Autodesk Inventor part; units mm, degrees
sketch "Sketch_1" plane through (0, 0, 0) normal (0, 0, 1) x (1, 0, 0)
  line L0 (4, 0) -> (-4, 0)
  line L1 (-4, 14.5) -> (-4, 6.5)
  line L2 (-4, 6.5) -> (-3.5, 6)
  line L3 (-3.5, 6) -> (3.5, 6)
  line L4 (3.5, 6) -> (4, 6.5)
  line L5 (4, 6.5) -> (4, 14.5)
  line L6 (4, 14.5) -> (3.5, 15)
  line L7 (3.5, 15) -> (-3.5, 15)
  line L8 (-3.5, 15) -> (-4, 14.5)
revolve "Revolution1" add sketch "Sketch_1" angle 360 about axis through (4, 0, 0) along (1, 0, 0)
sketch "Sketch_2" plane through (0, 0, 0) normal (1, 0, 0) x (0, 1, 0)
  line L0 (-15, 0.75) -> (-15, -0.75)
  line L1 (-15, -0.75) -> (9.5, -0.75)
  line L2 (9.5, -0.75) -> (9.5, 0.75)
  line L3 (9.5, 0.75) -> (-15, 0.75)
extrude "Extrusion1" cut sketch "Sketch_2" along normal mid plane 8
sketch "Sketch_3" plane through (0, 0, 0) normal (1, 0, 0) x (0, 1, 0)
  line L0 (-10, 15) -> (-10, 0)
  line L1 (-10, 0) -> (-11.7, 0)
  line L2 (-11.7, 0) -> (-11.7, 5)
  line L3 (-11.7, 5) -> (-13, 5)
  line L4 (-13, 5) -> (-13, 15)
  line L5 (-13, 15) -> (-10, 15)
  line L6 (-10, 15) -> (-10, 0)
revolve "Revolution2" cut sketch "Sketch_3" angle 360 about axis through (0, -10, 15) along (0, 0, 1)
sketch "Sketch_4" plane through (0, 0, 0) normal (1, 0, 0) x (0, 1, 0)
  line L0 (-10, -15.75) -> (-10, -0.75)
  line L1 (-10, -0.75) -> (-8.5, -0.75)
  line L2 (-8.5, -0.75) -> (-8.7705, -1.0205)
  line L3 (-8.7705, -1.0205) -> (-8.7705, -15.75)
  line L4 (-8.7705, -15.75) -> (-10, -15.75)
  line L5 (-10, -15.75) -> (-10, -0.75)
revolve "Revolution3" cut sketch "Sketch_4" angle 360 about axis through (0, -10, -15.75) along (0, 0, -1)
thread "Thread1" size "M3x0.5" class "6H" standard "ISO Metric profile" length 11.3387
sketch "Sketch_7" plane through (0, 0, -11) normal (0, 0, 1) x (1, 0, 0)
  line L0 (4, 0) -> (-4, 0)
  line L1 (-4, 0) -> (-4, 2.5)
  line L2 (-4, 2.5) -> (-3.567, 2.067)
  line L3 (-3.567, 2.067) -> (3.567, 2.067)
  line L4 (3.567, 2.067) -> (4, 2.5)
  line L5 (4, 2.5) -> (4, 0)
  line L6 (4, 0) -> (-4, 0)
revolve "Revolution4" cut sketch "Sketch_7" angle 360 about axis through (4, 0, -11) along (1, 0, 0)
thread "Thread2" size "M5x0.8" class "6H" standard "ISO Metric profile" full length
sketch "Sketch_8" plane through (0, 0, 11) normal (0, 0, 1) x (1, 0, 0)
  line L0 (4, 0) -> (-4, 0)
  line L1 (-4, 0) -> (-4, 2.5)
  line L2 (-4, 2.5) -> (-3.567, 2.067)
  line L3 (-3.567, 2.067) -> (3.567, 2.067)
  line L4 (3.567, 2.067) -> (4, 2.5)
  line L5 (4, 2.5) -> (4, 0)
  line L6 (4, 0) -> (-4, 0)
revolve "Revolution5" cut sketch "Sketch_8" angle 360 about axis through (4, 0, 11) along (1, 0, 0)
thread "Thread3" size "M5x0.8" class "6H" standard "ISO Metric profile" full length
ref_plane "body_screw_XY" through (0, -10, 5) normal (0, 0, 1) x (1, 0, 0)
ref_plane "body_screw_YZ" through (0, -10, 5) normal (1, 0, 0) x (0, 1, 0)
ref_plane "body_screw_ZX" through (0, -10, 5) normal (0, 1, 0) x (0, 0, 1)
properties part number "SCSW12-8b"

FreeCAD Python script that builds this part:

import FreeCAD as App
import Part
import Sketcher
from FreeCAD import Vector
Q = App.Units.Quantity

doc = App.newDocument("Part")
body = doc.addObject("PartDesign::Body", "Body")

# Sketch on XY plane
sketch1 = body.newObject("Sketcher::SketchObject", "Sketch")
sketch1.AttachmentSupport = (doc.getObject("XY_Plane"), [""])
sketch1.MapMode = "FlatFace"
sketch1.addGeometry([
    Part.LineSegment(Vector(-3.5, 15, 0), Vector(-4, 14.5, 0)),  # 0
    Part.LineSegment(Vector(-4, 14.5, 0), Vector(-4, 6.5, 0)),  # 1
    Part.LineSegment(Vector(-4, 6.5, 0), Vector(-3.5, 6, 0)),  # 2
    Part.LineSegment(Vector(-3.5, 6, 0), Vector(3.5, 6, 0)),  # 3
    Part.LineSegment(Vector(3.5, 6, 0), Vector(4, 6.5, 0)),  # 4
    Part.LineSegment(Vector(4, 6.5, 0), Vector(4, 14.5, 0)),  # 5
    Part.LineSegment(Vector(4, 14.5, 0), Vector(3.5, 15, 0)),  # 6
    Part.LineSegment(Vector(3.5, 15, 0), Vector(-3.5, 15, 0)),  # 7
], False)
sketch1.addConstraint([
    Sketcher.Constraint("Coincident", 0, 2, 1, 1),
    Sketcher.Constraint("Coincident", 1, 2, 2, 1),
    Sketcher.Constraint("Coincident", 2, 2, 3, 1),
    Sketcher.Constraint("Coincident", 3, 2, 4, 1),
    Sketcher.Constraint("Coincident", 4, 2, 5, 1),
    Sketcher.Constraint("Coincident", 5, 2, 6, 1),
    Sketcher.Constraint("Coincident", 6, 2, 7, 1),
    Sketcher.Constraint("Coincident", 7, 2, 0, 1),
    Sketcher.Constraint("Vertical", 1),
    Sketcher.Constraint("Horizontal", 3),
    Sketcher.Constraint("Vertical", 5),
    Sketcher.Constraint("Horizontal", 7),
    Sketcher.Constraint("Symmetric", 1, 2, 4, 2, -2),
    Sketcher.Constraint("Perpendicular", 0, 2),
    Sketcher.Constraint("Perpendicular", 2, 4),
    Sketcher.Constraint("Perpendicular", 4, 6),
    Sketcher.Constraint("Horizontal", 0, 2, 5, 2),
    Sketcher.Constraint("Vertical", 3, 2, 6, 2),
    Sketcher.Constraint("Vertical", 2, 2, 7, 2),
    Sketcher.Constraint("DistanceX", 3, 1, 3, 2, 7.0),
    Sketcher.Constraint("DistanceY", 1, 2, 1, 1, 8.0),
    Sketcher.Constraint("DistanceX", 0, 2, -1, 1, 4.0),
    Sketcher.Constraint("DistanceY", -1, 1, 2, 2, 6.0),
])
revolution = body.newObject("PartDesign::Revolution", "Revolution")
revolution.Profile = sketch1
revolution.ReferenceAxis = (sketch1, ["H_Axis"])
revolution.Angle = 360

# Sketch on YZ plane
sketch2 = body.newObject("Sketcher::SketchObject", "Sketch001")
sketch2.AttachmentSupport = (doc.getObject("YZ_Plane"), [""])
sketch2.MapMode = "FlatFace"
sketch2.addGeometry([
    Part.LineSegment(Vector(9.5, 0.75, 0), Vector(-15, 0.75, 0)),
    Part.LineSegment(Vector(-15, 0.75, 0), Vector(-15, -0.75, 0)),
    Part.LineSegment(Vector(-15, -0.75, 0), Vector(9.5, -0.75, 0)),
    Part.LineSegment(Vector(9.5, -0.75, 0), Vector(9.5, 0.75, 0)),
], False)
sketch2.addConstraint([
    Sketcher.Constraint("Coincident", 0, 2, 1, 1),
    Sketcher.Constraint("Coincident", 1, 2, 2, 1),
    Sketcher.Constraint("Coincident", 2, 2, 3, 1),
    Sketcher.Constraint("Coincident", 3, 2, 0, 1),
    Sketcher.Constraint("Horizontal", 0),
    Sketcher.Constraint("Vertical", 1),
    Sketcher.Constraint("Horizontal", 2),
    Sketcher.Constraint("Vertical", 3),
    Sketcher.Constraint("DistanceX", 0, 2, 0, 1, 24.5),
    Sketcher.Constraint("DistanceY", 1, 2, 1, 1, 1.5),
    Sketcher.Constraint("DistanceX", 0, 2, -1, 1, 15.0),
    Sketcher.Constraint("DistanceY", -1, 1, 0, 2, 0.75),
])
pocket1 = body.newObject("PartDesign::Pocket", "Pocket")
pocket1.Profile = sketch2
pocket1.Length = 8
pocket1.Midplane = True

# Sketch on YZ plane
sketch3 = body.newObject("Sketcher::SketchObject", "Sketch002")
sketch3.AttachmentSupport = (doc.getObject("YZ_Plane"), [""])
sketch3.MapMode = "FlatFace"
sketch3.addGeometry([
    Part.LineSegment(Vector(-10, 0, 0), Vector(-10, 15, 0)),  # 0
    Part.LineSegment(Vector(-10, 15, 0), Vector(-13, 15, 0)),  # 1
    Part.LineSegment(Vector(-13, 15, 0), Vector(-13, 5, 0)),  # 2
    Part.LineSegment(Vector(-13, 5, 0), Vector(-11.7, 5, 0)),  # 3
    Part.LineSegment(Vector(-11.7, 5, 0), Vector(-11.7, 0, 0)),  # 4
    Part.LineSegment(Vector(-11.7, 0, 0), Vector(-10, 0, 0)),  # 5
], False)
sketch3.addGeometry(Part.LineSegment(Vector(-10, 0, 0), Vector(-10, 15, 0)), True)  # axis
sketch3.addConstraint([
    Sketcher.Constraint("Coincident", 0, 2, 1, 1),
    Sketcher.Constraint("Coincident", 1, 2, 2, 1),
    Sketcher.Constraint("Coincident", 2, 2, 3, 1),
    Sketcher.Constraint("Coincident", 3, 2, 4, 1),
    Sketcher.Constraint("Coincident", 4, 2, 5, 1),
    Sketcher.Constraint("Coincident", 5, 2, 0, 1),
    Sketcher.Constraint("Vertical", 0),
    Sketcher.Constraint("Horizontal", 1),
    Sketcher.Constraint("Vertical", 2),
    Sketcher.Constraint("Horizontal", 3),
    Sketcher.Constraint("Vertical", 4),
    Sketcher.Constraint("Horizontal", 5),
    Sketcher.Constraint("Vertical", 6),
    Sketcher.Constraint("Coincident", 6, 1, 5, 2),
    Sketcher.Constraint("PointOnObject", 4, 2, -1),
    Sketcher.Constraint("Horizontal", 1, 2, 6, 2),
    Sketcher.Constraint("DistanceX", 1, 2, 1, 1, 3.0),
    Sketcher.Constraint("DistanceY", 0, 1, 0, 2, 15.0),
    Sketcher.Constraint("DistanceY", 2, 2, 2, 1, 10.0),
    Sketcher.Constraint("DistanceX", 3, 1, 3, 2, 1.3),
    Sketcher.Constraint("DistanceX", 0, 2, -1, 1, 10.0),
])
groove = body.newObject("PartDesign::Groove", "Groove")
groove.Profile = sketch3
groove.ReferenceAxis = (sketch3, ["Axis0"])
groove.Angle = 360

# Sketch on YZ plane
sketch4 = body.newObject("Sketcher::SketchObject", "Sketch003")
sketch4.AttachmentSupport = (doc.getObject("YZ_Plane"), [""])
sketch4.MapMode = "FlatFace"
sketch4.addGeometry([
    Part.LineSegment(Vector(-10, -0.75, 0), Vector(-10, -15.75, 0)),  # 0
    Part.LineSegment(Vector(-10, -15.75, 0), Vector(-8.7705, -15.75, 0)),  # 1
    Part.LineSegment(Vector(-8.7705, -15.75, 0), Vector(-8.7705, -1.0205, 0)),  # 2
    Part.LineSegment(Vector(-8.7705, -1.0205, 0), Vector(-8.5, -0.75, 0)),  # 3
    Part.LineSegment(Vector(-8.5, -0.75, 0), Vector(-10, -0.75, 0)),  # 4
], False)
sketch4.addGeometry(Part.LineSegment(Vector(-10, -0.75, 0), Vector(-10, -15.75, 0)), True)  # axis
sketch4.addConstraint([
    Sketcher.Constraint("Coincident", 0, 2, 1, 1),
    Sketcher.Constraint("Coincident", 1, 2, 2, 1),
    Sketcher.Constraint("Coincident", 2, 2, 3, 1),
    Sketcher.Constraint("Coincident", 3, 2, 4, 1),
    Sketcher.Constraint("Coincident", 4, 2, 0, 1),
    Sketcher.Constraint("Vertical", 0),
    Sketcher.Constraint("Horizontal", 1),
    Sketcher.Constraint("Vertical", 2),
    Sketcher.Constraint("Horizontal", 4),
    Sketcher.Constraint("Vertical", 5),
    Sketcher.Constraint("Coincident", 5, 1, 4, 2),
    Sketcher.Constraint("Horizontal", 1, 2, 5, 2),
    Sketcher.Constraint("DistanceY", 0, 2, 0, 1, 15.0),
    Sketcher.Constraint("Angle", 3, Q("45 deg")),
    Sketcher.Constraint("DistanceX", 4, 2, 4, 1, 1.5),
    Sketcher.Constraint("DistanceX", 0, 2, -1, 1, 10.0),
    Sketcher.Constraint("DistanceY", 0, 2, -1, 1, 15.75),
    Sketcher.Constraint("DistanceX", 1, 1, 1, 2, 1.2295),
])
groove2 = body.newObject("PartDesign::Groove", "Groove001")
groove2.Profile = sketch4
groove2.ReferenceAxis = (sketch4, ["Axis0"])
groove2.Angle = 360

# Sketch on XY plane
sketch5 = body.newObject("Sketcher::SketchObject", "Sketch004")
sketch5.AttachmentSupport = (doc.getObject("XY_Plane"), [""])
sketch5.MapMode = "FlatFace"
sketch5.AttachmentOffset = App.Placement(Vector(0, 0, -11), App.Rotation())
sketch5.addGeometry([
    Part.LineSegment(Vector(-4, 0, 0), Vector(4, 0, 0)),  # 0
    Part.LineSegment(Vector(4, 0, 0), Vector(4, 2.5, 0)),  # 1
    Part.LineSegment(Vector(4, 2.5, 0), Vector(3.567, 2.067, 0)),  # 2
    Part.LineSegment(Vector(3.567, 2.067, 0), Vector(-3.567, 2.067, 0)),  # 3
    Part.LineSegment(Vector(-3.567, 2.067, 0), Vector(-4, 2.5, 0)),  # 4
    Part.LineSegment(Vector(-4, 2.5, 0), Vector(-4, 0, 0)),  # 5
], False)
sketch5.addConstraint([
    Sketcher.Constraint("Coincident", 0, 2, 1, 1),
    Sketcher.Constraint("Coincident", 1, 2, 2, 1),
    Sketcher.Constraint("Coincident", 2, 2, 3, 1),
    Sketcher.Constraint("Coincident", 3, 2, 4, 1),
    Sketcher.Constraint("Coincident", 4, 2, 5, 1),
    Sketcher.Constraint("Coincident", 5, 2, 0, 1),
    Sketcher.Constraint("Horizontal", 0),
    Sketcher.Constraint("Vertical", 1),
    Sketcher.Constraint("Horizontal", 3),
    Sketcher.Constraint("Vertical", 5),
    Sketcher.Constraint("Symmetric", 0, 2, 5, 2, -1, 1),
    Sketcher.Constraint("Perpendicular", 2, 4),
    Sketcher.Constraint("Horizontal", 1, 2, 4, 2),
    Sketcher.Constraint("Equal", 2, 4),
    Sketcher.Constraint("DistanceX", 0, 1, 0, 2, 8.0),
    Sketcher.Constraint("DistanceY", 1, 1, 1, 2, 2.5),
    Sketcher.Constraint("DistanceX", 3, 2, 3, 1, 7.134),
])
groove3 = body.newObject("PartDesign::Groove", "Groove002")
groove3.Profile = sketch5
groove3.ReferenceAxis = (sketch5, ["H_Axis"])
groove3.Angle = 360

# Sketch on XY plane
sketch6 = body.newObject("Sketcher::SketchObject", "Sketch005")
sketch6.AttachmentSupport = (doc.getObject("XY_Plane"), [""])
sketch6.MapMode = "FlatFace"
sketch6.AttachmentOffset = App.Placement(Vector(0, 0, 11), App.Rotation())
sketch6.addGeometry([
    Part.LineSegment(Vector(-4, 0, 0), Vector(4, 0, 0)),  # 0
    Part.LineSegment(Vector(4, 0, 0), Vector(4, 2.5, 0)),  # 1
    Part.LineSegment(Vector(4, 2.5, 0), Vector(3.567, 2.067, 0)),  # 2
    Part.LineSegment(Vector(3.567, 2.067, 0), Vector(-3.567, 2.067, 0)),  # 3
    Part.LineSegment(Vector(-3.567, 2.067, 0), Vector(-4, 2.5, 0)),  # 4
    Part.LineSegment(Vector(-4, 2.5, 0), Vector(-4, 0, 0)),  # 5
], False)
sketch6.addConstraint([
    Sketcher.Constraint("Coincident", 0, 2, 1, 1),
    Sketcher.Constraint("Coincident", 1, 2, 2, 1),
    Sketcher.Constraint("Coincident", 2, 2, 3, 1),
    Sketcher.Constraint("Coincident", 3, 2, 4, 1),
    Sketcher.Constraint("Coincident", 4, 2, 5, 1),
    Sketcher.Constraint("Coincident", 5, 2, 0, 1),
    Sketcher.Constraint("Horizontal", 0),
    Sketcher.Constraint("Vertical", 1),
    Sketcher.Constraint("Horizontal", 3),
    Sketcher.Constraint("Vertical", 5),
    Sketcher.Constraint("Symmetric", 0, 2, 5, 2, -1, 1),
    Sketcher.Constraint("Perpendicular", 2, 4),
    Sketcher.Constraint("Horizontal", 1, 2, 4, 2),
    Sketcher.Constraint("Equal", 2, 4),
    Sketcher.Constraint("DistanceX", 0, 1, 0, 2, 8.0),
    Sketcher.Constraint("DistanceY", 1, 1, 1, 2, 2.5),
    Sketcher.Constraint("DistanceX", 3, 2, 3, 1, 7.134),
])
groove4 = body.newObject("PartDesign::Groove", "Groove003")
groove4.Profile = sketch6
groove4.ReferenceAxis = (sketch6, ["H_Axis"])
groove4.Angle = 360

doc.recompute()
